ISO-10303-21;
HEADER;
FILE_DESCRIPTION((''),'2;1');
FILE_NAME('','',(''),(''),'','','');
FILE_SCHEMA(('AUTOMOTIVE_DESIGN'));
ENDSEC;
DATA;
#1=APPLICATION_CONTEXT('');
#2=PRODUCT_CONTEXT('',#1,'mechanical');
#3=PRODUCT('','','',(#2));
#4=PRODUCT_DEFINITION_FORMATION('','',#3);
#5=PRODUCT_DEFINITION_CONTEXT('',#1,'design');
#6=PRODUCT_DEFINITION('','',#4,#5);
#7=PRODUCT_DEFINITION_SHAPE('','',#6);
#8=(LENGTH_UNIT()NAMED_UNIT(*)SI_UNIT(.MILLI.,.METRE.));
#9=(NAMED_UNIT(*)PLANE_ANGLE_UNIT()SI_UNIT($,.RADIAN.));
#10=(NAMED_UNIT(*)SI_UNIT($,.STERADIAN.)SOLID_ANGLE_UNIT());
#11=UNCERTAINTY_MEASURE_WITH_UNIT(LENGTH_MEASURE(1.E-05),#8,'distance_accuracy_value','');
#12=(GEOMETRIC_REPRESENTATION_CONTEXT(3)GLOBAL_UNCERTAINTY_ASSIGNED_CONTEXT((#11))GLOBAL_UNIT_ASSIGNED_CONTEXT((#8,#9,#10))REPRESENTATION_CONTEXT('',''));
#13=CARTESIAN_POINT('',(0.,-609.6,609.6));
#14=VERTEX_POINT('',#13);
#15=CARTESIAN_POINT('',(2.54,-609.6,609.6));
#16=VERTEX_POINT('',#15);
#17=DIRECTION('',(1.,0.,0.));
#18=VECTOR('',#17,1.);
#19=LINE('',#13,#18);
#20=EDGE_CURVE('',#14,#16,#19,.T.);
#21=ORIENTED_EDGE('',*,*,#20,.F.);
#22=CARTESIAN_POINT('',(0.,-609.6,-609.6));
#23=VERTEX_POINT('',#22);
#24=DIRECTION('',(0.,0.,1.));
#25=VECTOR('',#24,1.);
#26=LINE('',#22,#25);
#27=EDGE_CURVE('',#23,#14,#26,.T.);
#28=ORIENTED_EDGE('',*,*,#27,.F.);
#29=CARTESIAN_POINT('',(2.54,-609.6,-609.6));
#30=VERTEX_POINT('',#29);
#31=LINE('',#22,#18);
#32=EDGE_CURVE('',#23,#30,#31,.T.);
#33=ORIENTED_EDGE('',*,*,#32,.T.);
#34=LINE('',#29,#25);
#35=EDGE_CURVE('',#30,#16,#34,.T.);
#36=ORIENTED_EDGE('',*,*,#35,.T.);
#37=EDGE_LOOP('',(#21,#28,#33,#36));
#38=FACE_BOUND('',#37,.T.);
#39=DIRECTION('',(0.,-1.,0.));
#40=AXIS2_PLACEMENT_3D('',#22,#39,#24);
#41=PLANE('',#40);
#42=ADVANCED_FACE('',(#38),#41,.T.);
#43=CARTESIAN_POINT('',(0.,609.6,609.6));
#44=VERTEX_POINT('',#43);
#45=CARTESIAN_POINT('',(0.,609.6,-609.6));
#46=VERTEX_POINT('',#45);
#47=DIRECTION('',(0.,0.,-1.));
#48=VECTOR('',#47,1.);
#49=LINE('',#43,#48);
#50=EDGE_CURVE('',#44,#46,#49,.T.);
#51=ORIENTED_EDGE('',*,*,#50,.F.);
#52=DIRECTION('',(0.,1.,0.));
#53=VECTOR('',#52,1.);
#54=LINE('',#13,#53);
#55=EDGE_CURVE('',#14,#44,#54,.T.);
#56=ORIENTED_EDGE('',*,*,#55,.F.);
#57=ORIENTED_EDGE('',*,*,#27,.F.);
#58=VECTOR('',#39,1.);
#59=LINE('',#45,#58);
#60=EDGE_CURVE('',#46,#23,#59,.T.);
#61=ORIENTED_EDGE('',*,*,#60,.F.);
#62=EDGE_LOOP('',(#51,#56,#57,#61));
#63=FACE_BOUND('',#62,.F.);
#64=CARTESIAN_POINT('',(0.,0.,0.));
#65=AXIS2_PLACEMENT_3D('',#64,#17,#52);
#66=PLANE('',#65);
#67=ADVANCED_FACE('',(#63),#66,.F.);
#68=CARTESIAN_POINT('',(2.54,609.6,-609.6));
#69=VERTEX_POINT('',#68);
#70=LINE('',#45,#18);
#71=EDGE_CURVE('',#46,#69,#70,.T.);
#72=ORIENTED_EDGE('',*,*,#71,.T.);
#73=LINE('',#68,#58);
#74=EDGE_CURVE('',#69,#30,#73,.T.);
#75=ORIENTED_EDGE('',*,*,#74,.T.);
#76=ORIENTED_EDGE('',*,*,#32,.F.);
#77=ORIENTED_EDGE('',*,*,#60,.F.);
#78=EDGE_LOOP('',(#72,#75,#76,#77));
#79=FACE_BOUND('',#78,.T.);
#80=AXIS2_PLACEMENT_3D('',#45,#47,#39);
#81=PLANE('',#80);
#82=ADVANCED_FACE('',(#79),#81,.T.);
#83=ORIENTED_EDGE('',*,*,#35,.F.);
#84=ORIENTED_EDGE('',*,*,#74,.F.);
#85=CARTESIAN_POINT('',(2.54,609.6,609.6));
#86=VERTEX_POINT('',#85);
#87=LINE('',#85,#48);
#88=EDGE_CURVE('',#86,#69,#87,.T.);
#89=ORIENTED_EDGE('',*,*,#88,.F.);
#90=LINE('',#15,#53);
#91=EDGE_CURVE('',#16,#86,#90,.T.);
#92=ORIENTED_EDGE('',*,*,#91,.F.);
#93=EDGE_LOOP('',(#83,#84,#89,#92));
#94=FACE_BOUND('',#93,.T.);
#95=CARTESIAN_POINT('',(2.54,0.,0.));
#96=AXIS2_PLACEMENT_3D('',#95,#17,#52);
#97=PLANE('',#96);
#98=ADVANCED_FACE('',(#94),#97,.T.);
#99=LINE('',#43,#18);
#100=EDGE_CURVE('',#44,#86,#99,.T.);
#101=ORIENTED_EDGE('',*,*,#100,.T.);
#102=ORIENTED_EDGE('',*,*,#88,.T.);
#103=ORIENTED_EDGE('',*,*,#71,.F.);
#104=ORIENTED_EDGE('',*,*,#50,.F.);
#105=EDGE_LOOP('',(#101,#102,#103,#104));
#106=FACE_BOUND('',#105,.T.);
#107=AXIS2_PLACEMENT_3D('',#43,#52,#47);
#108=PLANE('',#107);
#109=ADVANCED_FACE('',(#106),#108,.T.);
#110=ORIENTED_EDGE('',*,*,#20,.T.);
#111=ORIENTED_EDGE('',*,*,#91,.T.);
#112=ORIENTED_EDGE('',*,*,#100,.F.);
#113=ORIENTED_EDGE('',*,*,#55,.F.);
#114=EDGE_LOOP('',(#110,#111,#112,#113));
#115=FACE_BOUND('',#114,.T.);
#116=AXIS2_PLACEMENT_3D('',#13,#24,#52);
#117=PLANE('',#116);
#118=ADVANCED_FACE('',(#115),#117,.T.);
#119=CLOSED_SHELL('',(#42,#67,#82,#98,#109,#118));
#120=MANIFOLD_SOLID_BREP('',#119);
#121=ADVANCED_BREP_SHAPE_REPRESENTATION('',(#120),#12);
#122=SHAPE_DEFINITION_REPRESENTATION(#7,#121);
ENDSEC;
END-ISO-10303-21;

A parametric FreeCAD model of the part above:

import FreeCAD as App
import Part
import Sketcher
Q = App.Units.Quantity


def add_polygon(sketch, points):
    """Adds a closed chain of lines whose ends are joined by coincident constraints."""
    first, n = sketch.GeometryCount, len(points)
    for a, b in zip(points, points[1:] + points[:1]):
        sketch.addGeometry(Part.LineSegment(App.Vector(*a, 0), App.Vector(*b, 0)), False)
    for i in range(n):
        sketch.addConstraint(Sketcher.Constraint("Coincident", first + i, 2, first + (i + 1) % n, 1))

doc = App.newDocument("Part")
body = doc.addObject("PartDesign::Body", "Body")

sketch1 = doc.addObject("Sketcher::SketchObject", "Sketch")
body.addObject(sketch1)
sketch1.AttachmentSupport = (doc.YZ_Plane, [""])
sketch1.MapMode = "FlatFace"
add_polygon(sketch1, [(610, 610), (-610, 610), (-610, -610), (610, -610)])
sketch1.addConstraint(Sketcher.Constraint("Horizontal", 0))
sketch1.addConstraint(Sketcher.Constraint("Vertical", 1))
sketch1.addConstraint(Sketcher.Constraint("Horizontal", 2))
sketch1.addConstraint(Sketcher.Constraint("Vertical", 3))
sketch1.addConstraint(Sketcher.Constraint("Symmetric", 0, 2, 2, 2, -1, 1))
sketch1.addConstraint(Sketcher.Constraint("Equal", 2, 1))
sketch1.addConstraint(Sketcher.Constraint("DistanceX", 0, 2, 0, 1, Q("48 in")))
pad1 = doc.addObject("PartDesign::Pad", "Pad")
body.addObject(pad1)
pad1.Profile = sketch1
pad1.Length = Q("0.1 in")

doc.recompute()
